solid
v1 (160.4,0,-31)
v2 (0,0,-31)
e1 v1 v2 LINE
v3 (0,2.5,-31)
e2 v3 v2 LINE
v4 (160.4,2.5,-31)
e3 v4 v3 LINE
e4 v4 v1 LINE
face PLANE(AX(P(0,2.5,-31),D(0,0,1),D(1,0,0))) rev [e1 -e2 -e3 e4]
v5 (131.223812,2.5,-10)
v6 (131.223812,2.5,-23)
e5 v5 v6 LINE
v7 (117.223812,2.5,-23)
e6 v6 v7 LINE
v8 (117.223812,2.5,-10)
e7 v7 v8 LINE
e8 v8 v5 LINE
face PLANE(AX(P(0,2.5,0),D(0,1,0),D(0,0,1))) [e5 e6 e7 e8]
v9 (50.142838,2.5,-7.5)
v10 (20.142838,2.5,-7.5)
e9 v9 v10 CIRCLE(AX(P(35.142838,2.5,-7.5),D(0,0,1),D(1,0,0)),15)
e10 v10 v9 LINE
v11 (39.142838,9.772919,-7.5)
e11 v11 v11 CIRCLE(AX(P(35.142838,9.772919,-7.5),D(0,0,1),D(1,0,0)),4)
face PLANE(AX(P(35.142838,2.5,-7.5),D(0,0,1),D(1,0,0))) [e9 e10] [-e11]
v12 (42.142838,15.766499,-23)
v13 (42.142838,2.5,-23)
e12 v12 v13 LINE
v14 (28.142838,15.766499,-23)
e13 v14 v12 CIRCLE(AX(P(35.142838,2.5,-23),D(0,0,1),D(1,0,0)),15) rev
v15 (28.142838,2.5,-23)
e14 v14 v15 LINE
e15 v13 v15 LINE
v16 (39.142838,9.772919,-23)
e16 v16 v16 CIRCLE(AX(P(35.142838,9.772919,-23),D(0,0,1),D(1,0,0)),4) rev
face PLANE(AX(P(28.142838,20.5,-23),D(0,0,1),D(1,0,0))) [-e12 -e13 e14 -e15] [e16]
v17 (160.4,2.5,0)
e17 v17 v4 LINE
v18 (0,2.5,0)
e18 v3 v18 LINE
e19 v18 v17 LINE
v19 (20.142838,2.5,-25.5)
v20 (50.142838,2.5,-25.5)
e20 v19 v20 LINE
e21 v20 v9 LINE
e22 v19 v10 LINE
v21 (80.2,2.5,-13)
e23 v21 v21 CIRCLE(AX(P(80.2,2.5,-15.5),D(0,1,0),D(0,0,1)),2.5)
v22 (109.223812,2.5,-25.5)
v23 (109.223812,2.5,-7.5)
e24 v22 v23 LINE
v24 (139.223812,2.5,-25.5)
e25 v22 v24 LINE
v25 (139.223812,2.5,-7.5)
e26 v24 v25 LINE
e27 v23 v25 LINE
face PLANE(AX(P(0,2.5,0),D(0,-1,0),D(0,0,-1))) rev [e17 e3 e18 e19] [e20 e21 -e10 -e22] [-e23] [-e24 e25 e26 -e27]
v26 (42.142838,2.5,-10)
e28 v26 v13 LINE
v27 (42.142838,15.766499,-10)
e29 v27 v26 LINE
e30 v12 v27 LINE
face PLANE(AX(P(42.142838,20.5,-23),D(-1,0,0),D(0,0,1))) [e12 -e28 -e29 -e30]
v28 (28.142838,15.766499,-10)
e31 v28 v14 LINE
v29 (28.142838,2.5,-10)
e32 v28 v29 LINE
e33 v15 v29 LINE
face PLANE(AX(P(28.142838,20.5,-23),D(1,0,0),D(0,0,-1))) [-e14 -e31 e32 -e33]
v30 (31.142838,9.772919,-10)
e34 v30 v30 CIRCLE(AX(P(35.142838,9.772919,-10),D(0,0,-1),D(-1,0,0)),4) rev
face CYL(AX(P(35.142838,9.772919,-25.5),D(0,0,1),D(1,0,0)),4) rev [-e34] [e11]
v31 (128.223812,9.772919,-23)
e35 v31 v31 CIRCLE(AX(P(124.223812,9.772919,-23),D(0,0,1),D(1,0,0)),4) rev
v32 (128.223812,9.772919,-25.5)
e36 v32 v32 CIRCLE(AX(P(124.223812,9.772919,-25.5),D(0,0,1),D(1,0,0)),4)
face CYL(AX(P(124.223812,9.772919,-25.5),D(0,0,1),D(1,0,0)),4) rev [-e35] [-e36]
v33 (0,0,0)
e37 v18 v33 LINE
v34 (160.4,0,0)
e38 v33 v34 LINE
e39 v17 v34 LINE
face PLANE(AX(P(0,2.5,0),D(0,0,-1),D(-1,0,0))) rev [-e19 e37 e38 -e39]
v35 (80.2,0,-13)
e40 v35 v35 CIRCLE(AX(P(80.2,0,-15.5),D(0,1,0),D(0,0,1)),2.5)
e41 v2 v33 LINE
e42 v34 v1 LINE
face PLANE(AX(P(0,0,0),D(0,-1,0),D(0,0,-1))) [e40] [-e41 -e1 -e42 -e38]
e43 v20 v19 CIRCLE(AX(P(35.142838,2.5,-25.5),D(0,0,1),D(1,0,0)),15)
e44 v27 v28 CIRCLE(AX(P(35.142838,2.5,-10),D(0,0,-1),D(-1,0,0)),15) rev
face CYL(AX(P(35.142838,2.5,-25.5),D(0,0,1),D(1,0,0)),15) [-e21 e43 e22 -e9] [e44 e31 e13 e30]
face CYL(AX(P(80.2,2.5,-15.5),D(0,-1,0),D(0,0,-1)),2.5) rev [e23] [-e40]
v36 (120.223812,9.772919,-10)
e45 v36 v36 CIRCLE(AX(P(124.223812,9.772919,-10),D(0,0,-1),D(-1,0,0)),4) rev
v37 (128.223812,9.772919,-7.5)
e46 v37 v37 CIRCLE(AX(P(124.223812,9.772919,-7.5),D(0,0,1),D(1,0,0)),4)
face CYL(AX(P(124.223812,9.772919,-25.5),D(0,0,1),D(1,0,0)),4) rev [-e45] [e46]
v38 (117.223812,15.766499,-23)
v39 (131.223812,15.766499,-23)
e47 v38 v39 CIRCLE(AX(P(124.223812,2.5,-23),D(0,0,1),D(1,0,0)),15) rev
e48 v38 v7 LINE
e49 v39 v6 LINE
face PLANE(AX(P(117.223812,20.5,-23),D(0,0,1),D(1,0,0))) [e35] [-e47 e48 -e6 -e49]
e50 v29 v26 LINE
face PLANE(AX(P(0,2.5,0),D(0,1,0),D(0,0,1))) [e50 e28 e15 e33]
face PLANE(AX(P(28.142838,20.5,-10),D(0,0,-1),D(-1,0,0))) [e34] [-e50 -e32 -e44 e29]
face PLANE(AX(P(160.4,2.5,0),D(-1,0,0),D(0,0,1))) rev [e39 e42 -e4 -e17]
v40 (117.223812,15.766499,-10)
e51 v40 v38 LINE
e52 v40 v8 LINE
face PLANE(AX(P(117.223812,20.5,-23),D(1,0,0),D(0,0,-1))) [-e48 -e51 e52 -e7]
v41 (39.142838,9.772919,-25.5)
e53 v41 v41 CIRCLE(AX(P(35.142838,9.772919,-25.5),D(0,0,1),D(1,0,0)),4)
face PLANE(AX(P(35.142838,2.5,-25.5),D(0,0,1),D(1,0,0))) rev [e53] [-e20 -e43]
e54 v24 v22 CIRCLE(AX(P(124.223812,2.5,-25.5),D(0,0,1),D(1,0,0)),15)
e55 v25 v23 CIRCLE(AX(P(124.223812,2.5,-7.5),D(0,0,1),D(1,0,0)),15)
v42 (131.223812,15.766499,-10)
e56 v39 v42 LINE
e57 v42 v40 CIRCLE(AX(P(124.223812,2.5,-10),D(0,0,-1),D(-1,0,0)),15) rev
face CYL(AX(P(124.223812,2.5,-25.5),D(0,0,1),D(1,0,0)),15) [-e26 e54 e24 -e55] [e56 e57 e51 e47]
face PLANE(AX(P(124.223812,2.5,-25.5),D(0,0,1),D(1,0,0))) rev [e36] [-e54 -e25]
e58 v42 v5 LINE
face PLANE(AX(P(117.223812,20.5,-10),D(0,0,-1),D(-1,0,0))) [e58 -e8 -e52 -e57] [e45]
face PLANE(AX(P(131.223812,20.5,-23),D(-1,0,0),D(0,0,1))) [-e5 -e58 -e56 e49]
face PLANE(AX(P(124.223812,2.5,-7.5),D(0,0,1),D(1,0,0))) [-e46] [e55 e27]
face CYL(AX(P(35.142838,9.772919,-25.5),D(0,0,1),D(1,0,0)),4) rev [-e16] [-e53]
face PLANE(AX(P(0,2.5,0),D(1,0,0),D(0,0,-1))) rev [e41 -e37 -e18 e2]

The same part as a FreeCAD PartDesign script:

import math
import FreeCAD as App
import Part
import Sketcher
from FreeCAD import Vector
Q = App.Units.Quantity


def add_polygon(sketch, points):
    """Adds a closed chain of lines whose ends are joined by coincident constraints."""
    first, n = sketch.GeometryCount, len(points)
    for a, b in zip(points, points[1:] + points[:1]):
        sketch.addGeometry(Part.LineSegment(App.Vector(*a, 0), App.Vector(*b, 0)), False)
    for i in range(n):
        sketch.addConstraint(Sketcher.Constraint("Coincident", first + i, 2, first + (i + 1) % n, 1))

doc = App.newDocument("Part")
body = doc.addObject("PartDesign::Body", "Body")

sketch1 = doc.addObject("Sketcher::SketchObject", "Sketch")
body.addObject(sketch1)
sketch1.AttachmentSupport = (doc.XZ_Plane, [""])
sketch1.MapMode = "FlatFace"
add_polygon(sketch1, [(0, -31), (0, 0), (160.4, 0), (160.4, -31)])
sketch1.addGeometry(Part.Circle(Vector(80.2, -15.5, 0), Vector(0, 0, 1), 2.5), False)
sketch1.addConstraint(Sketcher.Constraint("Vertical", 0))
sketch1.addConstraint(Sketcher.Constraint("Horizontal", 1))
sketch1.addConstraint(Sketcher.Constraint("Vertical", 2))
sketch1.addConstraint(Sketcher.Constraint("Horizontal", 3))
sketch1.addConstraint(Sketcher.Constraint("Coincident", 0, 2, -1, 1))
sketch1.addConstraint(Sketcher.Constraint("Diameter", 4, Q("5 mm")))
sketch1.addConstraint(Sketcher.Constraint("DistanceY", 0, 1, 0, 2, Q("31 mm")))
sketch1.addConstraint(Sketcher.Constraint("DistanceX", 1, 1, 1, 2, Q("160.4 mm")))
sketch1.addConstraint(Sketcher.Constraint("DistanceX", -1, 1, 4, 3, Q("80.2 mm")))
sketch1.addConstraint(Sketcher.Constraint("DistanceY", 4, 3, -1, 1, Q("15.5 mm")))
pad1 = doc.addObject("PartDesign::Pad", "Pad")
body.addObject(pad1)
pad1.Profile = sketch1
pad1.Length = 2.5
pad1.Reversed = True

sketch2 = doc.addObject("Sketcher::SketchObject", "Sketch001")
body.addObject(sketch2)
sketch2.AttachmentSupport = (doc.XY_Plane, [""])
sketch2.MapMode = "FlatFace"
sketch2.AttachmentOffset = App.Placement(Vector(0, 0, -7.5), App.Rotation())
sketch2.addGeometry(Part.LineSegment(Vector(20.1, 2.5, 0), Vector(50.1, 2.5, 0)), False)
sketch2.addGeometry(Part.ArcOfCircle(Part.Circle(Vector(35.1, 2.5, 0), Vector(0, 0, 1), 15), math.radians(0), math.radians(180)), False)
sketch2.addGeometry(Part.Circle(Vector(35.1, 9.8, 0), Vector(0, 0, 1), 4), False)
sketch2.addGeometry(Part.LineSegment(Vector(109.2, 2.5, 0), Vector(139.2, 2.5, 0)), False)
sketch2.addGeometry(Part.ArcOfCircle(Part.Circle(Vector(124.2, 2.5, 0), Vector(0, 0, 1), 15), math.radians(0), math.radians(180)), False)
sketch2.addGeometry(Part.Circle(Vector(124.2, 9.8, 0), Vector(0, 0, 1), 4), False)
sketch2.addConstraint(Sketcher.Constraint("Coincident", 0, 1, 1, 2))
sketch2.addConstraint(Sketcher.Constraint("Coincident", 1, 1, 0, 2))
sketch2.addConstraint(Sketcher.Constraint("Coincident", 3, 1, 4, 2))
sketch2.addConstraint(Sketcher.Constraint("Coincident", 4, 1, 3, 2))
sketch2.addConstraint(Sketcher.Constraint("Horizontal", 0))
sketch2.addConstraint(Sketcher.Constraint("Horizontal", 3))
sketch2.addConstraint(Sketcher.Constraint("Equal", 1, 4))
sketch2.addConstraint(Sketcher.Constraint("Equal", 2, 5))
sketch2.addConstraint(Sketcher.Constraint("Horizontal", 1, 3, 4, 3))
sketch2.addConstraint(Sketcher.Constraint("Horizontal", 2, 3, 5, 3))
sketch2.addConstraint(Sketcher.Constraint("Horizontal", 4, 3, 0, 1))
sketch2.addConstraint(Sketcher.Constraint("Horizontal", 1, 1, 3, 1))
sketch2.addConstraint(Sketcher.Constraint("Vertical", 1, 3, 2, 3))
sketch2.addConstraint(Sketcher.Constraint("Vertical", 4, 3, 5, 3))
sketch2.addConstraint(Sketcher.Constraint("Diameter", 2, Q("8 mm")))
sketch2.addConstraint(Sketcher.Constraint("Radius", 1, Q("15 mm")))
sketch2.addConstraint(Sketcher.Constraint("DistanceY", -1, 1, 1, 3, Q("2.5 mm")))
sketch2.addConstraint(Sketcher.Constraint("DistanceY", -1, 1, 2, 3, Q("9.772919 mm")))
sketch2.addConstraint(Sketcher.Constraint("DistanceX", -1, 1, 4, 3, Q("124.223812 mm")))
sketch2.addConstraint(Sketcher.Constraint("DistanceX", -1, 1, 1, 3, Q("35.142838 mm")))
pad2 = doc.addObject("PartDesign::Pad", "Pad001")
body.addObject(pad2)
pad2.Profile = sketch2
pad2.Length = 18
pad2.Reversed = True

sketch3 = doc.addObject("Sketcher::SketchObject", "Sketch002")
body.addObject(sketch3)
sketch3.AttachmentSupport = (doc.XZ_Plane, [""])
sketch3.MapMode = "FlatFace"
sketch3.AttachmentOffset = App.Placement(Vector(0, 0, -2.5), App.Rotation())
add_polygon(sketch3, [(28, -23), (28, -10), (42, -10), (42, -23)])
add_polygon(sketch3, [(117, -23), (117, -10), (131, -10), (131, -23)])
sketch3.addConstraint(Sketcher.Constraint("Vertical", 0))
sketch3.addConstraint(Sketcher.Constraint("Horizontal", 1))
sketch3.addConstraint(Sketcher.Constraint("Vertical", 2))
sketch3.addConstraint(Sketcher.Constraint("Horizontal", 3))
sketch3.addConstraint(Sketcher.Constraint("Vertical", 4))
sketch3.addConstraint(Sketcher.Constraint("Horizontal", 5))
sketch3.addConstraint(Sketcher.Constraint("Vertical", 6))
sketch3.addConstraint(Sketcher.Constraint("Horizontal", 7))
sketch3.addConstraint(Sketcher.Constraint("Horizontal", 1, 2, 4, 2))
sketch3.addConstraint(Sketcher.Constraint("Horizontal", 3, 2, 6, 2))
sketch3.addConstraint(Sketcher.Constraint("Equal", 3, 5))
sketch3.addConstraint(Sketcher.Constraint("DistanceX", 1, 1, 1, 2, Q("14 mm")))
sketch3.addConstraint(Sketcher.Constraint("DistanceY", 0, 1, 0, 2, Q("13 mm")))
sketch3.addConstraint(Sketcher.Constraint("DistanceY", 0, 2, -1, 1, Q("10 mm")))
sketch3.addConstraint(Sketcher.Constraint("DistanceX", -1, 1, 4, 2, Q("117.223812 mm")))
sketch3.addConstraint(Sketcher.Constraint("DistanceX", -1, 1, 0, 2, Q("28.142838 mm")))
pocket1 = doc.addObject("PartDesign::Pocket", "Pocket")
body.addObject(pocket1)
pocket1.Profile = sketch3
pocket1.Length = 18

doc.recompute()
